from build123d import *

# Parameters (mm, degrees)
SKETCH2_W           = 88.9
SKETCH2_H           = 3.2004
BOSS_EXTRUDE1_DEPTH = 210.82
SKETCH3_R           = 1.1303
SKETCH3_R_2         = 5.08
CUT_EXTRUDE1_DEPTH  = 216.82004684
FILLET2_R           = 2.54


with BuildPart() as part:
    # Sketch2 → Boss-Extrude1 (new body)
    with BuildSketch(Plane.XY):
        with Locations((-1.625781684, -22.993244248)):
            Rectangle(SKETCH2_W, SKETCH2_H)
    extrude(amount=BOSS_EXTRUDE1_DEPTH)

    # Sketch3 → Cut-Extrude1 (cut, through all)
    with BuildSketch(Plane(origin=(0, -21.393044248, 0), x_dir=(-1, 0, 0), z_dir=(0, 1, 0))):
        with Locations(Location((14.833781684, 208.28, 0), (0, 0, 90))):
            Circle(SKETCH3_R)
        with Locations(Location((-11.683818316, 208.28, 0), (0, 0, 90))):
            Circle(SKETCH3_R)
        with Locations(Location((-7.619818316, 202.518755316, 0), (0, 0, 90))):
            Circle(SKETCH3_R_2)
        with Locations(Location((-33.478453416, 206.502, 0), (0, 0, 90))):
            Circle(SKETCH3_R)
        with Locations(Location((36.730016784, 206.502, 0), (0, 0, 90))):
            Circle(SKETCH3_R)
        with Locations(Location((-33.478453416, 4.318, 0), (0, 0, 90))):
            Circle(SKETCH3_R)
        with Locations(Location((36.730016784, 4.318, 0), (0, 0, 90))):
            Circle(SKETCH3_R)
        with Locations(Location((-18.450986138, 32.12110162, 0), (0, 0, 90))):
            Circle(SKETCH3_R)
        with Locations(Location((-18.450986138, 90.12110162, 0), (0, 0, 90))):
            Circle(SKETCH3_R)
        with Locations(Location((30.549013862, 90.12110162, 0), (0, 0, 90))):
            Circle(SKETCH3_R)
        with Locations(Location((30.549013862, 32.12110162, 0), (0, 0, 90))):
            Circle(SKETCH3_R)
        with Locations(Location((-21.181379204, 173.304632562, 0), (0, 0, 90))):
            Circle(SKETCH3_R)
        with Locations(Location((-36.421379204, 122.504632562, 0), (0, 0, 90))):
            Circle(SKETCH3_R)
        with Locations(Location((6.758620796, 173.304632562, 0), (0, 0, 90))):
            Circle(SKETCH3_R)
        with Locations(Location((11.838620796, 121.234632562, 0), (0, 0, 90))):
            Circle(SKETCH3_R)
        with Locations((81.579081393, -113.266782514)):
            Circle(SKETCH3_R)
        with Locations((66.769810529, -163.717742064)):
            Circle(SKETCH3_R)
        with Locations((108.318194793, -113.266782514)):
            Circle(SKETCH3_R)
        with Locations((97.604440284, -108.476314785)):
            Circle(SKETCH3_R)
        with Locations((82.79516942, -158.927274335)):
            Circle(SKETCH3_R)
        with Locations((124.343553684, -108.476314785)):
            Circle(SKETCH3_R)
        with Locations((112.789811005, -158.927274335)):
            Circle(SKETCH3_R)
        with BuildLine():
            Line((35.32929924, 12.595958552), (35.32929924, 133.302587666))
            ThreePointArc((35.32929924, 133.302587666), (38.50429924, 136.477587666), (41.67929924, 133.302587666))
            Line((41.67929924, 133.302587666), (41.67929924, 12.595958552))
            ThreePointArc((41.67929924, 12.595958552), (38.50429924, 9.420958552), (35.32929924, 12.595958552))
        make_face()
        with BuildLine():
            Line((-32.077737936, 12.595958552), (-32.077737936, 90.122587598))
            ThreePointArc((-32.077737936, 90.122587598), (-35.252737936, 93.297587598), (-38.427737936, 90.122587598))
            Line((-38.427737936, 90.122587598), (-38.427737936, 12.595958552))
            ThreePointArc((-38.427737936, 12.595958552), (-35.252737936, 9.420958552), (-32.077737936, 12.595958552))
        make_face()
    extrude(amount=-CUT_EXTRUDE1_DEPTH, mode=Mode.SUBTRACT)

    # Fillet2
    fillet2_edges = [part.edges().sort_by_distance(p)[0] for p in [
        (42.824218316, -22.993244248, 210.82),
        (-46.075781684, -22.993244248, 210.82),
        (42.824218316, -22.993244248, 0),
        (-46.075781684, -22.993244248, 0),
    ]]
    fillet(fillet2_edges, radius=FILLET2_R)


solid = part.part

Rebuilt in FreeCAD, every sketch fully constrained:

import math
import FreeCAD as App
import Part
import Sketcher

V = App.Vector
Q = App.Units.Quantity


def edges_at(feature, points):
    """Names of the edges that pass closest to the given points."""
    edges = feature.Shape.Edges
    near = lambda p: min(range(len(edges)), key=lambda i: edges[i].distToShape(Part.Vertex(*p))[0])
    return sorted({f"Edge{near(p) + 1}" for p in points})

doc = App.newDocument("Part")
params = doc.addObject("Spreadsheet::Sheet", "Params")
for row, (alias, value) in enumerate([
    ("sketch1_width", "3.5 in"),
    ("sketch1_height", "0.126 in"),
    ("pad1_length", "8.3 in"),
    ("sketch2_diameter", "0.4 in"),
    ("sketch2_diameter2", "0.089 in"),
    ("sketch2_radius", "0.125 in"),
    ("fillet_radius", "0.1 in"),
], start=1):
    params.set(f"A{row}", alias)
    params.set(f"B{row}", "=" + value)
    params.setAlias(f"B{row}", alias)

body = doc.addObject("PartDesign::Body", "Body")

# Sketch on XY plane
sketch1 = body.newObject("Sketcher::SketchObject", "Sketch")
sketch1.AttachmentSupport = (doc.getObject("XY_Plane"), [""])
sketch1.MapMode = "FlatFace"
sketch1.addGeometry([
    Part.LineSegment(V(-46.1, -21.4, 0), V(-46.1, -24.6, 0)),
    Part.LineSegment(V(-46.1, -24.6, 0), V(42.8, -24.6, 0)),
    Part.LineSegment(V(42.8, -24.6, 0), V(42.8, -21.4, 0)),
    Part.LineSegment(V(42.8, -21.4, 0), V(-46.1, -21.4, 0)),
], False)
sketch1.addConstraint([
    Sketcher.Constraint("Coincident", 0, 2, 1, 1),
    Sketcher.Constraint("Coincident", 1, 2, 2, 1),
    Sketcher.Constraint("Coincident", 2, 2, 3, 1),
    Sketcher.Constraint("Coincident", 3, 2, 0, 1),
    Sketcher.Constraint("Vertical", 0),
    Sketcher.Constraint("Horizontal", 1),
    Sketcher.Constraint("Vertical", 2),
    Sketcher.Constraint("Horizontal", 3),
    Sketcher.Constraint("DistanceX", 1, 1, 1, 2, Q("3.5 in")),
    Sketcher.Constraint("DistanceY", 0, 2, 0, 1, Q("0.126 in")),
    Sketcher.Constraint("DistanceX", 0, 2, -1, 1, 46.075782),
    Sketcher.Constraint("DistanceY", 0, 2, -1, 1, 24.593444),
])
sketch1.setExpression("Constraints[8]", "Params.sketch1_width")
sketch1.setExpression("Constraints[9]", "Params.sketch1_height")
pad1 = body.newObject("PartDesign::Pad", "Pad")
pad1.Profile = sketch1
pad1.setExpression("Length", "Params.pad1_length")

# Sketch on XZ plane
sketch2 = body.newObject("Sketcher::SketchObject", "Sketch001")
sketch2.AttachmentSupport = (doc.getObject("XZ_Plane"), [""])
sketch2.MapMode = "FlatFace"
sketch2.AttachmentOffset = App.Placement(V(0, 0, 21.393044), App.Rotation())
sketch2.addGeometry([
    Part.Circle(V(-14.8, 208.3, 0), V(0, 0, 1), 1.1),  # 0
    Part.Circle(V(11.7, 208.3, 0), V(0, 0, 1), 1.1),  # 1
    Part.Circle(V(7.6, 202.5, 0), V(0, 0, 1), 5.1),  # 2
    Part.Circle(V(33.5, 206.5, 0), V(0, 0, 1), 1.1),  # 3
    Part.Circle(V(-36.7, 206.5, 0), V(0, 0, 1), 1.1),  # 4
    Part.Circle(V(33.5, 4.3, 0), V(0, 0, 1), 1.1),  # 5
    Part.Circle(V(-36.7, 4.3, 0), V(0, 0, 1), 1.1),  # 6
    Part.Circle(V(18.5, 32.1, 0), V(0, 0, 1), 1.1),  # 7
    Part.Circle(V(18.5, 90.1, 0), V(0, 0, 1), 1.1),  # 8
    Part.Circle(V(-30.5, 90.1, 0), V(0, 0, 1), 1.1),  # 9
    Part.Circle(V(-30.5, 32.1, 0), V(0, 0, 1), 1.1),  # 10
    Part.Circle(V(21.2, 173.3, 0), V(0, 0, 1), 1.1),  # 11
    Part.Circle(V(36.4, 122.5, 0), V(0, 0, 1), 1.1),  # 12
    Part.Circle(V(-6.8, 173.3, 0), V(0, 0, 1), 1.1),  # 13
    Part.Circle(V(-11.8, 121.2, 0), V(0, 0, 1), 1.1),  # 14
    Part.Circle(V(-81.6, -113.3, 0), V(0, 0, 1), 1.1),  # 15
    Part.Circle(V(-66.8, -163.7, 0), V(0, 0, 1), 1.1),  # 16
    Part.Circle(V(-108.3, -113.3, 0), V(0, 0, 1), 1.1),  # 17
    Part.Circle(V(-97.6, -108.5, 0), V(0, 0, 1), 1.1),  # 18
    Part.Circle(V(-82.8, -158.9, 0), V(0, 0, 1), 1.1),  # 19
    Part.Circle(V(-124.3, -108.5, 0), V(0, 0, 1), 1.1),  # 20
    Part.Circle(V(-112.8, -158.9, 0), V(0, 0, 1), 1.1),  # 21
    Part.LineSegment(V(-35.3, 133.3, 0), V(-35.3, 12.6, 0)),  # 22
    Part.ArcOfCircle(Part.Circle(V(-38.5, 12.6, 0), V(0, 0, 1), 3.2), math.radians(180), math.radians(360)),  # 23
    Part.LineSegment(V(-41.7, 12.6, 0), V(-41.7, 133.3, 0)),  # 24
    Part.ArcOfCircle(Part.Circle(V(-38.5, 133.3, 0), V(0, 0, 1), 3.2), math.radians(0), math.radians(180)),  # 25
    Part.LineSegment(V(32.1, 12.6, 0), V(32.1, 90.1, 0)),  # 26
    Part.ArcOfCircle(Part.Circle(V(35.3, 90.1, 0), V(0, 0, 1), 3.2), math.radians(0), math.radians(180)),  # 27
    Part.LineSegment(V(38.4, 90.1, 0), V(38.4, 12.6, 0)),  # 28
    Part.ArcOfCircle(Part.Circle(V(35.3, 12.6, 0), V(0, 0, 1), 3.2), math.radians(180), math.radians(360)),  # 29
], False)
sketch2.addConstraint([
    Sketcher.Constraint("Tangent", 22, 2, 23, 2),
    Sketcher.Constraint("Tangent", 23, 1, 24, 1),
    Sketcher.Constraint("Tangent", 24, 2, 25, 2),
    Sketcher.Constraint("Tangent", 25, 1, 22, 1),
    Sketcher.Constraint("Tangent", 26, 2, 27, 2),
    Sketcher.Constraint("Tangent", 27, 1, 28, 1),
    Sketcher.Constraint("Tangent", 28, 2, 29, 2),
    Sketcher.Constraint("Tangent", 29, 1, 26, 1),
    Sketcher.Constraint("Vertical", 22),
    Sketcher.Constraint("Vertical", 24),
    Sketcher.Constraint("Vertical", 26),
    Sketcher.Constraint("Vertical", 28),
    Sketcher.Constraint("Equal", 0, 1),
    Sketcher.Constraint("Equal", 1, 3),
    Sketcher.Constraint("Equal", 3, 4),
    Sketcher.Constraint("Equal", 4, 5),
    Sketcher.Constraint("Equal", 5, 6),
    Sketcher.Constraint("Equal", 6, 7),
    Sketcher.Constraint("Equal", 7, 8),
    Sketcher.Constraint("Equal", 8, 9),
    Sketcher.Constraint("Equal", 9, 10),
    Sketcher.Constraint("Equal", 10, 11),
    Sketcher.Constraint("Equal", 11, 12),
    Sketcher.Constraint("Equal", 12, 13),
    Sketcher.Constraint("Equal", 13, 14),
    Sketcher.Constraint("Equal", 14, 15),
    Sketcher.Constraint("Equal", 15, 16),
    Sketcher.Constraint("Equal", 16, 17),
    Sketcher.Constraint("Equal", 17, 18),
    Sketcher.Constraint("Equal", 18, 19),
    Sketcher.Constraint("Equal", 19, 20),
    Sketcher.Constraint("Equal", 20, 21),
    Sketcher.Constraint("Equal", 25, 27),
    Sketcher.Constraint("Horizontal", 0, 3, 1, 3),
    Sketcher.Constraint("Horizontal", 3, 3, 4, 3),
    Sketcher.Constraint("Horizontal", 5, 3, 6, 3),
    Sketcher.Constraint("Horizontal", 8, 3, 9, 3),
    Sketcher.Constraint("Horizontal", 7, 3, 10, 3),
    Sketcher.Constraint("Horizontal", 11, 3, 13, 3),
    Sketcher.Constraint("Horizontal", 15, 3, 17, 3),
    Sketcher.Constraint("Horizontal", 18, 3, 20, 3),
    Sketcher.Constraint("Horizontal", 19, 3, 21, 3),
    Sketcher.Constraint("Horizontal", 23, 3, 29, 3),
    Sketcher.Constraint("Vertical", 3, 3, 5, 3),
    Sketcher.Constraint("Vertical", 4, 3, 6, 3),
    Sketcher.Constraint("Vertical", 7, 3, 8, 3),
    Sketcher.Constraint("Vertical", 9, 3, 10, 3),
    Sketcher.Constraint("Diameter", 2, Q("0.4 in")),
    Sketcher.Constraint("Diameter", 0, Q("0.089 in")),
    Sketcher.Constraint("Radius", 23, Q("0.125 in")),
    Sketcher.Constraint("DistanceY", 12, 3, 11, 3, Q("2 in")),
    Sketcher.Constraint("DistanceY", -1, 1, 0, 3, Q("8.2 in")),
    Sketcher.Constraint("DistanceX", 11, 3, 12, 3, Q("0.6 in")),
    Sketcher.Constraint("DistanceX", 13, 3, 11, 3, Q("1.1 in")),
    Sketcher.Constraint("DistanceX", 14, 3, 12, 3, Q("1.9 in")),
    Sketcher.Constraint("DistanceY", -1, 1, 3, 3, Q("8.13 in")),
    Sketcher.Constraint("DistanceY", -1, 1, 5, 3, Q("0.17 in")),
    Sketcher.Constraint("DistanceX", 2, 3, 1, 3, Q("0.16 in")),
    Sketcher.Constraint("DistanceY", 14, 3, 12, 3, Q("0.05 in")),
    Sketcher.Constraint("DistanceX", 0, 3, 1, 3, Q("1.044 in")),
    Sketcher.Constraint("DistanceY", 22, 2, 22, 1, 120.706629),
    Sketcher.Constraint("DistanceY", 26, 1, 26, 2, 77.526629),
    Sketcher.Constraint("DistanceY", -1, 1, 7, 3, 32.121102),
    Sketcher.Constraint("DistanceY", -1, 1, 8, 3, 90.121102),
    Sketcher.Constraint("DistanceX", 23, 3, -1, 1, 38.504299),
    Sketcher.Constraint("DistanceX", 9, 3, 8, 3, 49.0),
    Sketcher.Constraint("DistanceX", 21, 3, 16, 3, 46.02),
    Sketcher.Constraint("DistanceX", 0, 3, -1, 1, 14.833782),
    Sketcher.Constraint("DistanceX", -1, 1, 11, 3, 21.181379),
    Sketcher.Constraint("DistanceX", 15, 3, -1, 1, 81.579081),
    Sketcher.Constraint("DistanceX", 16, 3, -1, 1, 66.769811),
    Sketcher.Constraint("DistanceX", 18, 3, -1, 1, 97.60444),
    Sketcher.Constraint("DistanceX", 19, 3, -1, 1, 82.795169),
    Sketcher.Constraint("DistanceY", -1, 1, 23, 3, 12.595959),
    Sketcher.Constraint("DistanceX", 4, 3, 3, 3, 70.20847),
    Sketcher.Constraint("DistanceY", 8, 3, 12, 3, 32.383531),
    Sketcher.Constraint("DistanceY", 16, 3, 15, 3, 50.45096),
    Sketcher.Constraint("DistanceX", 17, 3, 6, 3, 71.588178),
    Sketcher.Constraint("DistanceX", 17, 3, 10, 3, 77.769181),
    Sketcher.Constraint("DistanceY", 19, 3, 15, 3, 45.660492),
    Sketcher.Constraint("DistanceY", 19, 3, 18, 3, 50.45096),
    Sketcher.Constraint("DistanceX", 20, 3, 17, 3, 16.025359),
    Sketcher.Constraint("DistanceX", 8, 3, 27, 3, 16.801752),
    Sketcher.Constraint("DistanceX", 27, 3, 12, 3, 1.168641),
    Sketcher.Constraint("DistanceY", -1, 1, 2, 3, 202.518755),
    Sketcher.Constraint("DistanceY", 15, 3, -1, 1, 113.266783),
])
sketch2.setExpression("Constraints[47]", "Params.sketch2_diameter")
sketch2.setExpression("Constraints[48]", "Params.sketch2_diameter2")
sketch2.setExpression("Constraints[49]", "Params.sketch2_radius")
pocket1 = body.newObject("PartDesign::Pocket", "Pocket")
pocket1.Profile = sketch2
pocket1.Type = "ThroughAll"
pocket1.Reversed = True
doc.recompute()

fillet = body.newObject("PartDesign::Fillet", "Fillet")
fillet.Base = (pocket1, edges_at(pocket1, [
    (42.824, -22.993, 210.82),
    (-46.076, -22.993, 210.82),
    (42.824, -22.993, 0),
    (-46.076, -22.993, 0),
]))
fillet.setExpression("Radius", "Params.fillet_radius")

doc.recompute()
